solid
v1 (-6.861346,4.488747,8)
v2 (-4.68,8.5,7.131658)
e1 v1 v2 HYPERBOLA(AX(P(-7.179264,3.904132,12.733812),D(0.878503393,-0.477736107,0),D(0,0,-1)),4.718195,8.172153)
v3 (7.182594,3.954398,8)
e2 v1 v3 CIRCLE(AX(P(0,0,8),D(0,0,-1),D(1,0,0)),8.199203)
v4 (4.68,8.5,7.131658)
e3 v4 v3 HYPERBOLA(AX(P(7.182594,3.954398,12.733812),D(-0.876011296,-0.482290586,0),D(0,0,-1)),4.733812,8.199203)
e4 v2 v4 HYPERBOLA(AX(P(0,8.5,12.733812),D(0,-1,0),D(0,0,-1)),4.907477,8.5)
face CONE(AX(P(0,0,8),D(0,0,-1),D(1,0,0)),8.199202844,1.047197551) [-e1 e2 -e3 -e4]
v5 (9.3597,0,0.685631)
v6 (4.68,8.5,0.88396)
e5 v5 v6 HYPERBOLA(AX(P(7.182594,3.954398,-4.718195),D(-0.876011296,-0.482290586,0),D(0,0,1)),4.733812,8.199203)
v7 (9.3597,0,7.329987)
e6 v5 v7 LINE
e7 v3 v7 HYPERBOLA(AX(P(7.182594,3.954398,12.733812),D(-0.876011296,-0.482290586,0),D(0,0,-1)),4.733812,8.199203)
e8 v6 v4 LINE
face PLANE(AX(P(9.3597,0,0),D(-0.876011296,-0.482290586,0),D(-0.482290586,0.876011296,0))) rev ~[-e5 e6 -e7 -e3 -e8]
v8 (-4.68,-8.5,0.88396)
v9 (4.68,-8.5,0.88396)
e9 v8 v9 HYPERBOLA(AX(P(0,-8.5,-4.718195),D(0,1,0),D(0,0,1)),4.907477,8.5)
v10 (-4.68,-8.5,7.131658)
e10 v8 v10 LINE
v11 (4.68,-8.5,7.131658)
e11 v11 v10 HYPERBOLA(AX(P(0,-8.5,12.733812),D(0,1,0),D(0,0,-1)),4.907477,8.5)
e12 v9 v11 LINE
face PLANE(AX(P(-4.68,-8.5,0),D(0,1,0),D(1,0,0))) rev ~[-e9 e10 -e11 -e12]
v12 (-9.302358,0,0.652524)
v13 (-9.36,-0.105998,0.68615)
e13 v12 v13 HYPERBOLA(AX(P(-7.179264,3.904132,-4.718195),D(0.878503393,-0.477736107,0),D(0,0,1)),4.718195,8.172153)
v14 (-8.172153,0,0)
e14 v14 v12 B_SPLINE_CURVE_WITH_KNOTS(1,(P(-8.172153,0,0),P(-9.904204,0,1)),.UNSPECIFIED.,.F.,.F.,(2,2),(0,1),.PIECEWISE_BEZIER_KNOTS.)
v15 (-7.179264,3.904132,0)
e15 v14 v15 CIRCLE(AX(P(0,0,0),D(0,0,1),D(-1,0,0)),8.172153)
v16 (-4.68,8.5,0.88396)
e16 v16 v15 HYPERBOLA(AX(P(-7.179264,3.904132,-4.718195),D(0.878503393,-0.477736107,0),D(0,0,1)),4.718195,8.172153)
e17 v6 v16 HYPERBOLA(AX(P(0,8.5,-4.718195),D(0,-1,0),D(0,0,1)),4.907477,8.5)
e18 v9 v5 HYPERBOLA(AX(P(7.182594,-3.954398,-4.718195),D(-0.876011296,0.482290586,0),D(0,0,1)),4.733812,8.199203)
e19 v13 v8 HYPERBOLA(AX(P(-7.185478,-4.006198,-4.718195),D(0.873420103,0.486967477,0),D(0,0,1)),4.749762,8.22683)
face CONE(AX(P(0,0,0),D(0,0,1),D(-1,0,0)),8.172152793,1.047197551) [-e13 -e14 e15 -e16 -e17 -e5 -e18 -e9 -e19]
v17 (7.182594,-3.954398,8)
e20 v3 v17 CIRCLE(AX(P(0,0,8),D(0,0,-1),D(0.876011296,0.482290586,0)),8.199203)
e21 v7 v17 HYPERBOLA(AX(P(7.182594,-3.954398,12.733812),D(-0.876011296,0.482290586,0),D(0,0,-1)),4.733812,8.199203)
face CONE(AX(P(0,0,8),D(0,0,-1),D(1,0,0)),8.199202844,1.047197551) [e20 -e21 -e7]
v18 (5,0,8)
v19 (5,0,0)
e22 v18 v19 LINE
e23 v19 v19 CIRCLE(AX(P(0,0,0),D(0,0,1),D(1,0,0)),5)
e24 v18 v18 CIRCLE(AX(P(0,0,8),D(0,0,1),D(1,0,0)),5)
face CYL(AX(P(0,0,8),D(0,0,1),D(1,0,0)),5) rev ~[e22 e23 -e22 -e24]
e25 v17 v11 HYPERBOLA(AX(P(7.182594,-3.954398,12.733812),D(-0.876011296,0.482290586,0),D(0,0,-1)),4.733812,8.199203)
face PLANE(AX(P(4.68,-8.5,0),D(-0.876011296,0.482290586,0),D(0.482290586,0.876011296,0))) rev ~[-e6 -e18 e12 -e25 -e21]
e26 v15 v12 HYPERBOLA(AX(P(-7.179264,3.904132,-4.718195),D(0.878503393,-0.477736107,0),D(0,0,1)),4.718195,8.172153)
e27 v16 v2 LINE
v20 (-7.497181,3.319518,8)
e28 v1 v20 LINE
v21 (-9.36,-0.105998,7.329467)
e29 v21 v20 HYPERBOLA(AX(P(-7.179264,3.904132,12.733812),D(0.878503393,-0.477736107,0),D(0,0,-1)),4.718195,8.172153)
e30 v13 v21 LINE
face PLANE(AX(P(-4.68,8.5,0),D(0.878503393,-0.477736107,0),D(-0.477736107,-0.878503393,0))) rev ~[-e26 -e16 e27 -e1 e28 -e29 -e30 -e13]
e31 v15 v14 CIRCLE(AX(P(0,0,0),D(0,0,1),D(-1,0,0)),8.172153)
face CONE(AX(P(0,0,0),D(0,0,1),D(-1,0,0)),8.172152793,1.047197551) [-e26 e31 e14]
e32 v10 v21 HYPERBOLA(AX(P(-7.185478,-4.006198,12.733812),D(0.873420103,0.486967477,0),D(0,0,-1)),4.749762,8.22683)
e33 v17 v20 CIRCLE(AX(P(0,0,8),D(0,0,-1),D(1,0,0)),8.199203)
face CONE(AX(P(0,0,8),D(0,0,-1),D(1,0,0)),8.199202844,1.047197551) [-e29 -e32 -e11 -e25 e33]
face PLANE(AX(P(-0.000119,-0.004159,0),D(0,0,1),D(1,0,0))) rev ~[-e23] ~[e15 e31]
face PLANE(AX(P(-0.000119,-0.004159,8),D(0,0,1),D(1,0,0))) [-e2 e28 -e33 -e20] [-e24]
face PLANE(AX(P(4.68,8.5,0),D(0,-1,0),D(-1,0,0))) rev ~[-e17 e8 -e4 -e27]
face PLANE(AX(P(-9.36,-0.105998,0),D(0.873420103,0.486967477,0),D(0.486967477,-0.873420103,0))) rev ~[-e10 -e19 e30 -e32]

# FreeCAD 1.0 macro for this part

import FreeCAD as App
import Part
import Sketcher

V = App.Vector

doc = App.newDocument("Part")
body = doc.addObject("PartDesign::Body", "Body")

# Sketch on XY plane
sketch1 = body.newObject("Sketcher::SketchObject", "Sketch")
sketch1.AttachmentSupport = (doc.getObject("XY_Plane"), [""])
sketch1.MapMode = "FlatFace"
sketch1.addGeometry(Part.LineSegment(V(9, 0, 0), V(5, 8, 0)), False)
sketch1.addGeometry(Part.LineSegment(V(5, 8, 0), V(-5, 8, 0)), False)
sketch1.addGeometry(Part.LineSegment(V(-5, 8, 0), V(-9, 0, 0)), False)
sketch1.addGeometry(Part.LineSegment(V(-9, 0, 0), V(-5, -8, 0)), False)
sketch1.addGeometry(Part.LineSegment(V(-5, -8, 0), V(5, -8, 0)), False)
sketch1.addGeometry(Part.LineSegment(V(5, -8, 0), V(9, 0, 0)), False)
sketch1.addConstraint(Sketcher.Constraint("Coincident", 0, 2, 1, 1))
sketch1.addConstraint(Sketcher.Constraint("Coincident", 1, 2, 2, 1))
sketch1.addConstraint(Sketcher.Constraint("Coincident", 2, 2, 3, 1))
sketch1.addConstraint(Sketcher.Constraint("Coincident", 3, 2, 4, 1))
sketch1.addConstraint(Sketcher.Constraint("Coincident", 4, 2, 5, 1))
sketch1.addConstraint(Sketcher.Constraint("Coincident", 5, 2, 0, 1))
sketch1.addConstraint(Sketcher.Constraint("Horizontal", 1))
sketch1.addConstraint(Sketcher.Constraint("Horizontal", 4))
sketch1.addConstraint(Sketcher.Constraint("Symmetric", 0, 2, 3, 2, -1, 1))
sketch1.addConstraint(Sketcher.Constraint("PointOnObject", 5, 2, -1))
sketch1.addConstraint(Sketcher.Constraint("Vertical", 1, 2, 3, 2))
sketch1.addConstraint(Sketcher.Constraint("Vertical", 0, 2, 4, 2))
sketch1.addConstraint(Sketcher.Constraint("DistanceY", 3, 2, 1, 2, 17.0))
sketch1.addConstraint(Sketcher.Constraint("DistanceX", 1, 2, 1, 1, 9.36))
sketch1.addConstraint(Sketcher.Constraint("DistanceX", 2, 2, -1, 1, 9.36))
sketch1.addConstraint(Sketcher.Constraint("Distance", 3, 9.610498))
sketch1.addConstraint(Sketcher.Constraint("DistanceX", -1, 1, 5, 2, 9.3597))
pad1 = body.newObject("PartDesign::Pad", "Pad")
pad1.Profile = sketch1
pad1.Length = 8

# Sketch on XY plane
sketch2 = body.newObject("Sketcher::SketchObject", "Sketch001")
sketch2.AttachmentSupport = (doc.getObject("XY_Plane"), [""])
sketch2.MapMode = "FlatFace"
sketch2.AttachmentOffset = App.Placement(V(0, 0, 8), App.Rotation())
sketch2.addGeometry(Part.LineSegment(V(-30, 29, 0), V(-30, -29, 0)), False)
sketch2.addGeometry(Part.LineSegment(V(-30, -29, 0), V(30, -29, 0)), False)
sketch2.addGeometry(Part.LineSegment(V(30, -29, 0), V(30, 29, 0)), False)
sketch2.addGeometry(Part.LineSegment(V(30, 29, 0), V(-30, 29, 0)), False)
sketch2.addGeometry(Part.Circle(V(0, 0, 0), V(0, 0, 1), 8), False)
sketch2.addConstraint(Sketcher.Constraint("Coincident", 0, 2, 1, 1))
sketch2.addConstraint(Sketcher.Constraint("Coincident", 1, 2, 2, 1))
sketch2.addConstraint(Sketcher.Constraint("Coincident", 2, 2, 3, 1))
sketch2.addConstraint(Sketcher.Constraint("Coincident", 3, 2, 0, 1))
sketch2.addConstraint(Sketcher.Constraint("Vertical", 0))
sketch2.addConstraint(Sketcher.Constraint("Horizontal", 1))
sketch2.addConstraint(Sketcher.Constraint("Vertical", 2))
sketch2.addConstraint(Sketcher.Constraint("Horizontal", 3))
sketch2.addConstraint(Sketcher.Constraint("Coincident", 4, 3, -1, 1))
sketch2.addConstraint(Sketcher.Constraint("Symmetric", 0, 2, 2, 2, -1, 1))
sketch2.addConstraint(Sketcher.Constraint("DistanceX", 1, 1, 1, 2, 60.666))
sketch2.addConstraint(Sketcher.Constraint("DistanceY", 0, 2, 0, 1, 58.946))
sketch2.addConstraint(Sketcher.Constraint("Diameter", 4, 16.398406))
pocket1 = body.newObject("PartDesign::Pocket", "Pocket")
pocket1.Profile = sketch2
pocket1.Length = 10
pocket1.TaperAngle = 60

# Sketch on XY plane
sketch3 = body.newObject("Sketcher::SketchObject", "Sketch002")
sketch3.AttachmentSupport = (doc.getObject("XY_Plane"), [""])
sketch3.MapMode = "FlatFace"
sketch3.addGeometry(Part.LineSegment(V(15, 14, 0), V(15, -14, 0)), False)
sketch3.addGeometry(Part.LineSegment(V(15, -14, 0), V(-15, -14, 0)), False)
sketch3.addGeometry(Part.LineSegment(V(-15, -14, 0), V(-15, 14, 0)), False)
sketch3.addGeometry(Part.LineSegment(V(-15, 14, 0), V(15, 14, 0)), False)
sketch3.addGeometry(Part.Circle(V(0, 0, 0), V(0, 0, 1), 8), False)
sketch3.addConstraint(Sketcher.Constraint("Coincident", 0, 2, 1, 1))
sketch3.addConstraint(Sketcher.Constraint("Coincident", 1, 2, 2, 1))
sketch3.addConstraint(Sketcher.Constraint("Coincident", 2, 2, 3, 1))
sketch3.addConstraint(Sketcher.Constraint("Coincident", 3, 2, 0, 1))
sketch3.addConstraint(Sketcher.Constraint("Vertical", 0))
sketch3.addConstraint(Sketcher.Constraint("Horizontal", 1))
sketch3.addConstraint(Sketcher.Constraint("Vertical", 2))
sketch3.addConstraint(Sketcher.Constraint("Horizontal", 3))
sketch3.addConstraint(Sketcher.Constraint("Coincident", 4, 3, -1, 1))
sketch3.addConstraint(Sketcher.Constraint("Symmetric", 0, 2, 2, 2, -1, 1))
sketch3.addConstraint(Sketcher.Constraint("DistanceX", 1, 2, 1, 1, 29.488))
sketch3.addConstraint(Sketcher.Constraint("DistanceY", 0, 2, 0, 1, 27.768))
sketch3.addConstraint(Sketcher.Constraint("Diameter", 4, 16.344306))
pocket2 = body.newObject("PartDesign::Pocket", "Pocket001")
pocket2.Profile = sketch3
pocket2.Length = 1
pocket2.Reversed = True
pocket2.TaperAngle = 60

# Sketch on XY plane
sketch4 = body.newObject("Sketcher::SketchObject", "Sketch003")
sketch4.AttachmentSupport = (doc.getObject("XY_Plane"), [""])
sketch4.MapMode = "FlatFace"
sketch4.AttachmentOffset = App.Placement(V(0, 0, 8), App.Rotation())
sketch4.addGeometry(Part.Circle(V(0, 0, 0), V(0, 0, 1), 5), False)
sketch4.addConstraint(Sketcher.Constraint("Coincident", 0, 3, -1, 1))
sketch4.addConstraint(Sketcher.Constraint("Diameter", 0, 10.0))
pocket3 = body.newObject("PartDesign::Pocket", "Pocket002")
pocket3.Profile = sketch4
pocket3.Length = 8

doc.recompute()
